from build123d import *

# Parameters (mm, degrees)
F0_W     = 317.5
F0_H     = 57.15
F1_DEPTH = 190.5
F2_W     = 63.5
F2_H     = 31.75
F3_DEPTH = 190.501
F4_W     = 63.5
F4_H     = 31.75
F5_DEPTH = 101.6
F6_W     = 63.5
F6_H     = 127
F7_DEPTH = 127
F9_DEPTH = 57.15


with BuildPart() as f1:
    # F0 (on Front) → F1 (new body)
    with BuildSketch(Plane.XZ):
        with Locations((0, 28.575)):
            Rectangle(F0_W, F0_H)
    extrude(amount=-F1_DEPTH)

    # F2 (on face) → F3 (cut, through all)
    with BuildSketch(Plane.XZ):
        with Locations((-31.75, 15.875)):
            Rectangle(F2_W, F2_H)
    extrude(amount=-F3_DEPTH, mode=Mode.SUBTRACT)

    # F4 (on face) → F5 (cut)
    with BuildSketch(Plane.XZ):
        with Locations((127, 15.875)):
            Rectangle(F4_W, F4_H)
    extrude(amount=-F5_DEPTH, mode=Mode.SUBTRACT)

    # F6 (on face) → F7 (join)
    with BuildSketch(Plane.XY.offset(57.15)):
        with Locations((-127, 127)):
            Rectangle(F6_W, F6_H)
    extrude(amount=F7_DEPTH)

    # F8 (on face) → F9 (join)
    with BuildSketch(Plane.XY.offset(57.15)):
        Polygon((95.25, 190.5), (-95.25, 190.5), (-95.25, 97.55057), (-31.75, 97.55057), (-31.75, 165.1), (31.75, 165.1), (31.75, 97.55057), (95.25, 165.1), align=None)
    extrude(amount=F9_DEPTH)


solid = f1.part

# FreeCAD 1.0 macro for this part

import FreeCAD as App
import Part
import Sketcher

V = App.Vector
Q = App.Units.Quantity

doc = App.newDocument("Part")
body = doc.addObject("PartDesign::Body", "Body")

# Sketch on XZ plane
sketch1 = body.newObject("Sketcher::SketchObject", "Sketch")
sketch1.AttachmentSupport = (doc.getObject("XZ_Plane"), [""])
sketch1.MapMode = "FlatFace"
sketch1.addGeometry(Part.LineSegment(V(-159, 57, 0), V(-159, 0, 0)), False)
sketch1.addGeometry(Part.LineSegment(V(-159, 0, 0), V(159, 0, 0)), False)
sketch1.addGeometry(Part.LineSegment(V(159, 0, 0), V(159, 57, 0)), False)
sketch1.addGeometry(Part.LineSegment(V(159, 57, 0), V(-159, 57, 0)), False)
sketch1.addConstraint(Sketcher.Constraint("Coincident", 0, 2, 1, 1))
sketch1.addConstraint(Sketcher.Constraint("Coincident", 1, 2, 2, 1))
sketch1.addConstraint(Sketcher.Constraint("Coincident", 2, 2, 3, 1))
sketch1.addConstraint(Sketcher.Constraint("Coincident", 3, 2, 0, 1))
sketch1.addConstraint(Sketcher.Constraint("Vertical", 0))
sketch1.addConstraint(Sketcher.Constraint("Horizontal", 1))
sketch1.addConstraint(Sketcher.Constraint("Vertical", 2))
sketch1.addConstraint(Sketcher.Constraint("Horizontal", 3))
sketch1.addConstraint(Sketcher.Constraint("Symmetric", 0, 2, 1, 2, -1, 1))
sketch1.addConstraint(Sketcher.Constraint("DistanceX", 1, 1, 1, 2, Q("12.5 in")))
sketch1.addConstraint(Sketcher.Constraint("DistanceY", 0, 2, 0, 1, Q("2.25 in")))
pad1 = body.newObject("PartDesign::Pad", "Pad")
pad1.Profile = sketch1
pad1.Length = Q("7.5 in")
pad1.Reversed = True

# Sketch on XZ plane
sketch2 = body.newObject("Sketcher::SketchObject", "Sketch001")
sketch2.AttachmentSupport = (doc.getObject("XZ_Plane"), [""])
sketch2.MapMode = "FlatFace"
sketch2.addGeometry(Part.LineSegment(V(-64, 32, 0), V(-64, 0, 0)), False)
sketch2.addGeometry(Part.LineSegment(V(-64, 0, 0), V(0, 0, 0)), False)
sketch2.addGeometry(Part.LineSegment(V(0, 0, 0), V(0, 32, 0)), False)
sketch2.addGeometry(Part.LineSegment(V(0, 32, 0), V(-64, 32, 0)), False)
sketch2.addConstraint(Sketcher.Constraint("Coincident", 0, 2, 1, 1))
sketch2.addConstraint(Sketcher.Constraint("Coincident", 1, 2, 2, 1))
sketch2.addConstraint(Sketcher.Constraint("Coincident", 2, 2, 3, 1))
sketch2.addConstraint(Sketcher.Constraint("Coincident", 3, 2, 0, 1))
sketch2.addConstraint(Sketcher.Constraint("Vertical", 0))
sketch2.addConstraint(Sketcher.Constraint("Horizontal", 1))
sketch2.addConstraint(Sketcher.Constraint("Vertical", 2))
sketch2.addConstraint(Sketcher.Constraint("Horizontal", 3))
sketch2.addConstraint(Sketcher.Constraint("Coincident", 1, 2, -1, 1))
sketch2.addConstraint(Sketcher.Constraint("DistanceX", 1, 1, 1, 2, Q("2.5 in")))
sketch2.addConstraint(Sketcher.Constraint("DistanceY", 0, 2, 0, 1, Q("1.25 in")))
pocket1 = body.newObject("PartDesign::Pocket", "Pocket")
pocket1.Profile = sketch2
pocket1.Type = "ThroughAll"

# Sketch on XZ plane
sketch3 = body.newObject("Sketcher::SketchObject", "Sketch002")
sketch3.AttachmentSupport = (doc.getObject("XZ_Plane"), [""])
sketch3.MapMode = "FlatFace"
sketch3.addGeometry(Part.LineSegment(V(95, 32, 0), V(95, 0, 0)), False)
sketch3.addGeometry(Part.LineSegment(V(95, 0, 0), V(159, 0, 0)), False)
sketch3.addGeometry(Part.LineSegment(V(159, 0, 0), V(159, 32, 0)), False)
sketch3.addGeometry(Part.LineSegment(V(159, 32, 0), V(95, 32, 0)), False)
sketch3.addConstraint(Sketcher.Constraint("Coincident", 0, 2, 1, 1))
sketch3.addConstraint(Sketcher.Constraint("Coincident", 1, 2, 2, 1))
sketch3.addConstraint(Sketcher.Constraint("Coincident", 2, 2, 3, 1))
sketch3.addConstraint(Sketcher.Constraint("Coincident", 3, 2, 0, 1))
sketch3.addConstraint(Sketcher.Constraint("Vertical", 0))
sketch3.addConstraint(Sketcher.Constraint("Horizontal", 1))
sketch3.addConstraint(Sketcher.Constraint("Vertical", 2))
sketch3.addConstraint(Sketcher.Constraint("Horizontal", 3))
sketch3.addConstraint(Sketcher.Constraint("PointOnObject", 0, 2, -1))
sketch3.addConstraint(Sketcher.Constraint("DistanceX", 1, 1, 1, 2, Q("2.5 in")))
sketch3.addConstraint(Sketcher.Constraint("DistanceY", 0, 2, 0, 1, Q("1.25 in")))
sketch3.addConstraint(Sketcher.Constraint("DistanceX", -1, 1, 0, 2, Q("3.75 in")))
pocket2 = body.newObject("PartDesign::Pocket", "Pocket001")
pocket2.Profile = sketch3
pocket2.Length = Q("4 in")

# Sketch on XY plane
sketch4 = body.newObject("Sketcher::SketchObject", "Sketch003")
sketch4.AttachmentSupport = (doc.getObject("XY_Plane"), [""])
sketch4.MapMode = "FlatFace"
sketch4.AttachmentOffset = App.Placement(V(0, 0, 2.25 * 25.4), App.Rotation())
sketch4.addGeometry(Part.LineSegment(V(-159, 190, 0), V(-159, 64, 0)), False)
sketch4.addGeometry(Part.LineSegment(V(-159, 64, 0), V(-95, 64, 0)), False)
sketch4.addGeometry(Part.LineSegment(V(-95, 64, 0), V(-95, 190, 0)), False)
sketch4.addGeometry(Part.LineSegment(V(-95, 190, 0), V(-159, 190, 0)), False)
sketch4.addConstraint(Sketcher.Constraint("Coincident", 0, 2, 1, 1))
sketch4.addConstraint(Sketcher.Constraint("Coincident", 1, 2, 2, 1))
sketch4.addConstraint(Sketcher.Constraint("Coincident", 2, 2, 3, 1))
sketch4.addConstraint(Sketcher.Constraint("Coincident", 3, 2, 0, 1))
sketch4.addConstraint(Sketcher.Constraint("Vertical", 0))
sketch4.addConstraint(Sketcher.Constraint("Horizontal", 1))
sketch4.addConstraint(Sketcher.Constraint("Vertical", 2))
sketch4.addConstraint(Sketcher.Constraint("Horizontal", 3))
sketch4.addConstraint(Sketcher.Constraint("DistanceY", 0, 2, 0, 1, Q("5 in")))
sketch4.addConstraint(Sketcher.Constraint("DistanceX", 1, 1, 1, 2, Q("2.5 in")))
sketch4.addConstraint(Sketcher.Constraint("DistanceY", -1, 1, 0, 2, Q("2.5 in")))
sketch4.addConstraint(Sketcher.Constraint("DistanceX", 0, 2, -1, 1, Q("6.25 in")))
pad2 = body.newObject("PartDesign::Pad", "Pad001")
pad2.Profile = sketch4
pad2.Length = Q("5 in")

# Sketch on XY plane
sketch5 = body.newObject("Sketcher::SketchObject", "Sketch004")
sketch5.AttachmentSupport = (doc.getObject("XY_Plane"), [""])
sketch5.MapMode = "FlatFace"
sketch5.AttachmentOffset = App.Placement(V(0, 0, 2.25 * 25.4), App.Rotation())
sketch5.addGeometry(Part.LineSegment(V(95, 190, 0), V(-95, 190, 0)), False)
sketch5.addGeometry(Part.LineSegment(V(-95, 190, 0), V(-95, 98, 0)), False)
sketch5.addGeometry(Part.LineSegment(V(-95, 98, 0), V(-32, 98, 0)), False)
sketch5.addGeometry(Part.LineSegment(V(-32, 98, 0), V(-32, 165, 0)), False)
sketch5.addGeometry(Part.LineSegment(V(-32, 165, 0), V(32, 165, 0)), False)
sketch5.addGeometry(Part.LineSegment(V(32, 165, 0), V(32, 98, 0)), False)
sketch5.addGeometry(Part.LineSegment(V(32, 98, 0), V(95, 165, 0)), False)
sketch5.addGeometry(Part.LineSegment(V(95, 165, 0), V(95, 190, 0)), False)
sketch5.addConstraint(Sketcher.Constraint("Coincident", 0, 2, 1, 1))
sketch5.addConstraint(Sketcher.Constraint("Coincident", 1, 2, 2, 1))
sketch5.addConstraint(Sketcher.Constraint("Coincident", 2, 2, 3, 1))
sketch5.addConstraint(Sketcher.Constraint("Coincident", 3, 2, 4, 1))
sketch5.addConstraint(Sketcher.Constraint("Coincident", 4, 2, 5, 1))
sketch5.addConstraint(Sketcher.Constraint("Coincident", 5, 2, 6, 1))
sketch5.addConstraint(Sketcher.Constraint("Coincident", 6, 2, 7, 1))
sketch5.addConstraint(Sketcher.Constraint("Coincident", 7, 2, 0, 1))
sketch5.addConstraint(Sketcher.Constraint("Horizontal", 0))
sketch5.addConstraint(Sketcher.Constraint("Vertical", 1))
sketch5.addConstraint(Sketcher.Constraint("Horizontal", 2))
sketch5.addConstraint(Sketcher.Constraint("Vertical", 3))
sketch5.addConstraint(Sketcher.Constraint("Horizontal", 4))
sketch5.addConstraint(Sketcher.Constraint("Vertical", 5))
sketch5.addConstraint(Sketcher.Constraint("Vertical", 7))
sketch5.addConstraint(Sketcher.Constraint("Symmetric", 2, 2, 5, 2, -2))
sketch5.addConstraint(Sketcher.Constraint("Horizontal", 4, 2, 6, 2))
sketch5.addConstraint(Sketcher.Constraint("Equal", 2, 4))
sketch5.addConstraint(Sketcher.Constraint("DistanceY", 7, 1, 7, 2, Q("1 in")))
sketch5.addConstraint(Sketcher.Constraint("DistanceX", 0, 2, 0, 1, Q("7.5 in")))
sketch5.addConstraint(Sketcher.Constraint("DistanceX", 2, 1, 2, 2, Q("2.5 in")))
sketch5.addConstraint(Sketcher.Constraint("DistanceY", -1, 1, 0, 2, Q("7.5 in")))
sketch5.addConstraint(Sketcher.Constraint("DistanceY", 1, 2, 1, 1, 92.94943))
pad3 = body.newObject("PartDesign::Pad", "Pad002")
pad3.Profile = sketch5
pad3.Length = Q("2.25 in")

doc.recompute()
